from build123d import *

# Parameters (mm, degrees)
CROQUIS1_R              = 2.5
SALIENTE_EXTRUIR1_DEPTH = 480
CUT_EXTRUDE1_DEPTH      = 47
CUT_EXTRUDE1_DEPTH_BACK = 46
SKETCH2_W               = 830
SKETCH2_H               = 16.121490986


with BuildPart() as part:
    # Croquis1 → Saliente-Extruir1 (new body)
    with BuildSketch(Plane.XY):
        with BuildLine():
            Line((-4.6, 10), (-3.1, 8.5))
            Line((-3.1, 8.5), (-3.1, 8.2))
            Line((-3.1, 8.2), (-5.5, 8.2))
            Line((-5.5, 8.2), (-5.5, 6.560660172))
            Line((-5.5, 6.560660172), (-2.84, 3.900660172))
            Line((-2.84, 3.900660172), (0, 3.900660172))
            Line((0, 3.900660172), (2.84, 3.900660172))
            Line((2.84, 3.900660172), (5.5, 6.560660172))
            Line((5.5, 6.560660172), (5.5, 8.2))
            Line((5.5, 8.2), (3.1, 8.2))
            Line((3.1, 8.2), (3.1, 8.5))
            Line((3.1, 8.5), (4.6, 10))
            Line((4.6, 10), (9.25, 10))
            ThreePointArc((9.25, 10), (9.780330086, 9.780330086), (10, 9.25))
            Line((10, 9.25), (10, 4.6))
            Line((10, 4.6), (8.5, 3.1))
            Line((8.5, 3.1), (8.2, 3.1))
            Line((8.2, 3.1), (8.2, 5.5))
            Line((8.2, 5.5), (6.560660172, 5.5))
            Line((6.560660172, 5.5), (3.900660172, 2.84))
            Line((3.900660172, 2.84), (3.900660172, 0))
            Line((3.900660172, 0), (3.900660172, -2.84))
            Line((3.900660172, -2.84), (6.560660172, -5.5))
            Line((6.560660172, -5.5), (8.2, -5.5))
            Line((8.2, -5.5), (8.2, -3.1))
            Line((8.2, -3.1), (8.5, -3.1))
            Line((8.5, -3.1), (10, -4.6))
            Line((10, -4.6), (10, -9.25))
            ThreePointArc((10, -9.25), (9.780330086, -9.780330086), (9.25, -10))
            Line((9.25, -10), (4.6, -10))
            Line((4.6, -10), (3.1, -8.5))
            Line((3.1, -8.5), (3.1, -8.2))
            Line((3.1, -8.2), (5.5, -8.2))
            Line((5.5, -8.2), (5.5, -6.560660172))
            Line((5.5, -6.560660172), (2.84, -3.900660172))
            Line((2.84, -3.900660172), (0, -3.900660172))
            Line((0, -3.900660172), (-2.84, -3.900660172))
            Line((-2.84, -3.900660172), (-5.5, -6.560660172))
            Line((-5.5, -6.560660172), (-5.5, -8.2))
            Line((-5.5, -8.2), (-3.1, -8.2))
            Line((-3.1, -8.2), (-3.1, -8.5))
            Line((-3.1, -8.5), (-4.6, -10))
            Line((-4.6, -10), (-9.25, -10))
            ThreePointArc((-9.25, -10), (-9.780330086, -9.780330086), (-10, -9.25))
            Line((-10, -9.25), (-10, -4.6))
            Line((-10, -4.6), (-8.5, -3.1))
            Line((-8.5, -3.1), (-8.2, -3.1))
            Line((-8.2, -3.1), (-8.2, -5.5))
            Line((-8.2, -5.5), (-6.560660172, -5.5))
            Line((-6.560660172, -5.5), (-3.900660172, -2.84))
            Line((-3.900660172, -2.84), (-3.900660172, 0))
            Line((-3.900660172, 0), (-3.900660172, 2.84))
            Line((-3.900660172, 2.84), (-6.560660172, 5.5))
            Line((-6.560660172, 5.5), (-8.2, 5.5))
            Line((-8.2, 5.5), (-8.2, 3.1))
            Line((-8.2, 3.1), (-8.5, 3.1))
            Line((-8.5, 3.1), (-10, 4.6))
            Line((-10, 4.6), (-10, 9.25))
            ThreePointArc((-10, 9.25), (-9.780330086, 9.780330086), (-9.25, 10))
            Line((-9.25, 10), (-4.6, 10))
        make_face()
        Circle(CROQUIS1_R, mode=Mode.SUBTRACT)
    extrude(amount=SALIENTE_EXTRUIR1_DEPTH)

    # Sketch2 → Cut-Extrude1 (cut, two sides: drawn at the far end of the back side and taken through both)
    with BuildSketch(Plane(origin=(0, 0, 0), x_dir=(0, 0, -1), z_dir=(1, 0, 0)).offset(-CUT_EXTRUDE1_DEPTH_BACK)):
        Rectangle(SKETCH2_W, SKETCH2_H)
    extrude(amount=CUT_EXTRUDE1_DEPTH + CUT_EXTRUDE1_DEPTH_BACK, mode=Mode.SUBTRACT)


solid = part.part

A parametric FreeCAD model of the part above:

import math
import FreeCAD as App
import Part
import Sketcher

V = App.Vector
Q = App.Units.Quantity

doc = App.newDocument("Part")
body = doc.addObject("PartDesign::Body", "Body")

sketch1 = body.newObject("Sketcher::SketchObject", "Sketch")
sketch1.AttachmentSupport = (doc.getObject("XY_Plane"), [""])
sketch1.MapMode = "FlatFace"
sketch1.addGeometry([
    Part.LineSegment(V(-3.1, 8.5, 0), V(-4.6, 10, 0)),
    Part.LineSegment(V(-4.6, 10, 0), V(-9.25, 10, 0)),
    Part.ArcOfCircle(Part.Circle(V(-9.25, 9.25, 0), V(0, 0, 1), 0.75), math.radians(90), math.radians(180)),
    Part.LineSegment(V(-10, 9.25, 0), V(-10, 4.6, 0)),
    Part.LineSegment(V(-10, 4.6, 0), V(-8.5, 3.1, 0)),
    Part.LineSegment(V(-8.5, 3.1, 0), V(-8.2, 3.1, 0)),
    Part.LineSegment(V(-8.2, 3.1, 0), V(-8.2, 5.5, 0)),
    Part.LineSegment(V(-8.2, 5.5, 0), V(-6.56, 5.5, 0)),
    Part.LineSegment(V(-6.56, 5.5, 0), V(-3.9, 2.84, 0)),
    Part.LineSegment(V(-3.9, 2.84, 0), V(-3.9, -2.84, 0)),
    Part.LineSegment(V(-3.9, -2.84, 0), V(-6.56, -5.5, 0)),
    Part.LineSegment(V(-6.56, -5.5, 0), V(-8.2, -5.5, 0)),
    Part.LineSegment(V(-8.2, -5.5, 0), V(-8.2, -3.1, 0)),
    Part.LineSegment(V(-8.2, -3.1, 0), V(-8.5, -3.1, 0)),
    Part.LineSegment(V(-8.5, -3.1, 0), V(-10, -4.6, 0)),
    Part.LineSegment(V(-10, -4.6, 0), V(-10, -9.25, 0)),
    Part.ArcOfCircle(Part.Circle(V(-9.25, -9.25, 0), V(0, 0, 1), 0.75), math.radians(180), math.radians(270)),
    Part.LineSegment(V(-9.25, -10, 0), V(-4.6, -10, 0)),
    Part.LineSegment(V(-4.6, -10, 0), V(-3.1, -8.5, 0)),
    Part.LineSegment(V(-3.1, -8.5, 0), V(-3.1, -8.2, 0)),
    Part.LineSegment(V(-3.1, -8.2, 0), V(-5.5, -8.2, 0)),
    Part.LineSegment(V(-5.5, -8.2, 0), V(-5.5, -6.56, 0)),
    Part.LineSegment(V(-5.5, -6.56, 0), V(-2.84, -3.9, 0)),
    Part.LineSegment(V(-2.84, -3.9, 0), V(2.84, -3.9, 0)),
    Part.LineSegment(V(2.84, -3.9, 0), V(5.5, -6.56, 0)),
    Part.LineSegment(V(5.5, -6.56, 0), V(5.5, -8.2, 0)),
    Part.LineSegment(V(5.5, -8.2, 0), V(3.1, -8.2, 0)),
    Part.LineSegment(V(3.1, -8.2, 0), V(3.1, -8.5, 0)),
    Part.LineSegment(V(3.1, -8.5, 0), V(4.6, -10, 0)),
    Part.LineSegment(V(4.6, -10, 0), V(9.25, -10, 0)),
    Part.ArcOfCircle(Part.Circle(V(9.25, -9.25, 0), V(0, 0, 1), 0.75), math.radians(-90), math.radians(0)),
    Part.LineSegment(V(10, -9.25, 0), V(10, -4.6, 0)),
    Part.LineSegment(V(10, -4.6, 0), V(8.5, -3.1, 0)),
    Part.LineSegment(V(8.5, -3.1, 0), V(8.2, -3.1, 0)),
    Part.LineSegment(V(8.2, -3.1, 0), V(8.2, -5.5, 0)),
    Part.LineSegment(V(8.2, -5.5, 0), V(6.56, -5.5, 0)),
    Part.LineSegment(V(6.56, -5.5, 0), V(3.9, -2.84, 0)),
    Part.LineSegment(V(3.9, -2.84, 0), V(3.9, 2.84, 0)),
    Part.LineSegment(V(3.9, 2.84, 0), V(6.56, 5.5, 0)),
    Part.LineSegment(V(6.56, 5.5, 0), V(8.2, 5.5, 0)),
    Part.LineSegment(V(8.2, 5.5, 0), V(8.2, 3.1, 0)),
    Part.LineSegment(V(8.2, 3.1, 0), V(8.5, 3.1, 0)),
    Part.LineSegment(V(8.5, 3.1, 0), V(10, 4.6, 0)),
    Part.LineSegment(V(10, 4.6, 0), V(10, 9.25, 0)),
    Part.ArcOfCircle(Part.Circle(V(9.25, 9.25, 0), V(0, 0, 1), 0.75), math.radians(0), math.radians(90)),
    Part.LineSegment(V(9.25, 10, 0), V(4.6, 10, 0)),
    Part.LineSegment(V(4.6, 10, 0), V(3.1, 8.5, 0)),
    Part.LineSegment(V(3.1, 8.5, 0), V(3.1, 8.2, 0)),
    Part.LineSegment(V(3.1, 8.2, 0), V(5.5, 8.2, 0)),
    Part.LineSegment(V(5.5, 8.2, 0), V(5.5, 6.56, 0)),
    Part.LineSegment(V(5.5, 6.56, 0), V(2.84, 3.9, 0)),
    Part.LineSegment(V(2.84, 3.9, 0), V(-2.84, 3.9, 0)),
    Part.LineSegment(V(-2.84, 3.9, 0), V(-5.5, 6.56, 0)),
    Part.LineSegment(V(-5.5, 6.56, 0), V(-5.5, 8.2, 0)),
    Part.LineSegment(V(-5.5, 8.2, 0), V(-3.1, 8.2, 0)),
    Part.LineSegment(V(-3.1, 8.2, 0), V(-3.1, 8.5, 0)),
    Part.Circle(V(0, 0, 0), V(0, 0, 1), 2.5),
], False)
sketch1.addConstraint([
    Sketcher.Constraint("Coincident", 0, 2, 1, 1),
    Sketcher.Constraint("Tangent", 1, 2, 2, 1),
    Sketcher.Constraint("Tangent", 2, 2, 3, 1),
    Sketcher.Constraint("Coincident", 3, 2, 4, 1),
    Sketcher.Constraint("Coincident", 4, 2, 5, 1),
    Sketcher.Constraint("Coincident", 5, 2, 6, 1),
    Sketcher.Constraint("Coincident", 6, 2, 7, 1),
    Sketcher.Constraint("Coincident", 7, 2, 8, 1),
    Sketcher.Constraint("Coincident", 8, 2, 9, 1),
    Sketcher.Constraint("Coincident", 9, 2, 10, 1),
    Sketcher.Constraint("Coincident", 10, 2, 11, 1),
    Sketcher.Constraint("Coincident", 11, 2, 12, 1),
    Sketcher.Constraint("Coincident", 12, 2, 13, 1),
    Sketcher.Constraint("Coincident", 13, 2, 14, 1),
    Sketcher.Constraint("Coincident", 14, 2, 15, 1),
    Sketcher.Constraint("Tangent", 15, 2, 16, 1),
    Sketcher.Constraint("Tangent", 16, 2, 17, 1),
    Sketcher.Constraint("Coincident", 17, 2, 18, 1),
    Sketcher.Constraint("Coincident", 18, 2, 19, 1),
    Sketcher.Constraint("Coincident", 19, 2, 20, 1),
    Sketcher.Constraint("Coincident", 20, 2, 21, 1),
    Sketcher.Constraint("Coincident", 21, 2, 22, 1),
    Sketcher.Constraint("Coincident", 22, 2, 23, 1),
    Sketcher.Constraint("Coincident", 23, 2, 24, 1),
    Sketcher.Constraint("Coincident", 24, 2, 25, 1),
    Sketcher.Constraint("Coincident", 25, 2, 26, 1),
    Sketcher.Constraint("Coincident", 26, 2, 27, 1),
    Sketcher.Constraint("Coincident", 27, 2, 28, 1),
    Sketcher.Constraint("Coincident", 28, 2, 29, 1),
    Sketcher.Constraint("Tangent", 29, 2, 30, 1),
    Sketcher.Constraint("Tangent", 30, 2, 31, 1),
    Sketcher.Constraint("Coincident", 31, 2, 32, 1),
    Sketcher.Constraint("Coincident", 32, 2, 33, 1),
    Sketcher.Constraint("Coincident", 33, 2, 34, 1),
    Sketcher.Constraint("Coincident", 34, 2, 35, 1),
    Sketcher.Constraint("Coincident", 35, 2, 36, 1),
    Sketcher.Constraint("Coincident", 36, 2, 37, 1),
    Sketcher.Constraint("Coincident", 37, 2, 38, 1),
    Sketcher.Constraint("Coincident", 38, 2, 39, 1),
    Sketcher.Constraint("Coincident", 39, 2, 40, 1),
    Sketcher.Constraint("Coincident", 40, 2, 41, 1),
    Sketcher.Constraint("Coincident", 41, 2, 42, 1),
    Sketcher.Constraint("Coincident", 42, 2, 43, 1),
    Sketcher.Constraint("Tangent", 43, 2, 44, 1),
    Sketcher.Constraint("Tangent", 44, 2, 45, 1),
    Sketcher.Constraint("Coincident", 45, 2, 46, 1),
    Sketcher.Constraint("Coincident", 46, 2, 47, 1),
    Sketcher.Constraint("Coincident", 47, 2, 48, 1),
    Sketcher.Constraint("Coincident", 48, 2, 49, 1),
    Sketcher.Constraint("Coincident", 49, 2, 50, 1),
    Sketcher.Constraint("Coincident", 50, 2, 51, 1),
    Sketcher.Constraint("Coincident", 51, 2, 52, 1),
    Sketcher.Constraint("Coincident", 52, 2, 53, 1),
    Sketcher.Constraint("Coincident", 53, 2, 54, 1),
    Sketcher.Constraint("Coincident", 54, 2, 55, 1),
    Sketcher.Constraint("Coincident", 55, 2, 0, 1),
    Sketcher.Constraint("Horizontal", 1),
    Sketcher.Constraint("Vertical", 3),
    Sketcher.Constraint("Horizontal", 5),
    Sketcher.Constraint("Vertical", 6),
    Sketcher.Constraint("Horizontal", 7),
    Sketcher.Constraint("Vertical", 9),
    Sketcher.Constraint("Horizontal", 11),
    Sketcher.Constraint("Vertical", 12),
    Sketcher.Constraint("Horizontal", 13),
    Sketcher.Constraint("Vertical", 15),
    Sketcher.Constraint("Horizontal", 17),
    Sketcher.Constraint("Vertical", 19),
    Sketcher.Constraint("Horizontal", 20),
    Sketcher.Constraint("Vertical", 21),
    Sketcher.Constraint("Horizontal", 23),
    Sketcher.Constraint("Vertical", 25),
    Sketcher.Constraint("Horizontal", 26),
    Sketcher.Constraint("Vertical", 27),
    Sketcher.Constraint("Horizontal", 29),
    Sketcher.Constraint("Vertical", 31),
    Sketcher.Constraint("Horizontal", 33),
    Sketcher.Constraint("Vertical", 34),
    Sketcher.Constraint("Horizontal", 35),
    Sketcher.Constraint("Vertical", 37),
    Sketcher.Constraint("Horizontal", 39),
    Sketcher.Constraint("Vertical", 40),
    Sketcher.Constraint("Horizontal", 41),
    Sketcher.Constraint("Vertical", 43),
    Sketcher.Constraint("Horizontal", 45),
    Sketcher.Constraint("Vertical", 47),
    Sketcher.Constraint("Horizontal", 48),
    Sketcher.Constraint("Vertical", 49),
    Sketcher.Constraint("Horizontal", 51),
    Sketcher.Constraint("Vertical", 53),
    Sketcher.Constraint("Horizontal", 54),
    Sketcher.Constraint("Vertical", 55),
    Sketcher.Constraint("Coincident", 56, 3, -1, 1),
    Sketcher.Constraint("Equal", 2, 16),
    Sketcher.Constraint("Equal", 16, 30),
    Sketcher.Constraint("Equal", 30, 44),
    Sketcher.Constraint("Symmetric", 2, 3, 30, 3, -1, 1),
    Sketcher.Constraint("Symmetric", 16, 3, 44, 3, -1, 1),
    Sketcher.Constraint("Symmetric", 4, 2, 32, 2, -1, 1),
    Sketcher.Constraint("Symmetric", 6, 2, 34, 2, -1, 1),
    Sketcher.Constraint("Symmetric", 8, 2, 36, 2, -1, 1),
    Sketcher.Constraint("Symmetric", 10, 2, 38, 2, -1, 1),
    Sketcher.Constraint("Symmetric", 12, 2, 40, 2, -1, 1),
    Sketcher.Constraint("Symmetric", 18, 2, 46, 2, -1, 1),
    Sketcher.Constraint("Symmetric", 20, 2, 48, 2, -1, 1),
    Sketcher.Constraint("Symmetric", 22, 2, 50, 2, -1, 1),
    Sketcher.Constraint("Symmetric", 24, 2, 52, 2, -1, 1),
    Sketcher.Constraint("Symmetric", 26, 2, 54, 2, -1, 1),
    Sketcher.Constraint("Symmetric", 16, 3, 30, 3, -2),
    Sketcher.Constraint("Symmetric", 21, 2, 24, 2, -2),
    Sketcher.Constraint("Symmetric", 19, 2, 26, 2, -2),
    Sketcher.Constraint("Symmetric", 13, 2, 32, 2, -2),
    Sketcher.Constraint("Symmetric", 11, 2, 34, 2, -2),
    Sketcher.Constraint("Parallel", 0, 4),
    Sketcher.Constraint("Parallel", 4, 8),
    Sketcher.Constraint("Perpendicular", 8, 10),
    Sketcher.Constraint("Parallel", 10, 14),
    Sketcher.Constraint("Parallel", 14, 18),
    Sketcher.Constraint("Parallel", 18, 22),
    Sketcher.Constraint("Perpendicular", 22, 24),
    Sketcher.Constraint("Parallel", 24, 28),
    Sketcher.Constraint("Parallel", 28, 32),
    Sketcher.Constraint("Parallel", 32, 36),
    Sketcher.Constraint("Perpendicular", 36, 38),
    Sketcher.Constraint("Parallel", 38, 42),
    Sketcher.Constraint("Parallel", 42, 46),
    Sketcher.Constraint("Parallel", 46, 50),
    Sketcher.Constraint("Perpendicular", 50, 52),
    Sketcher.Constraint("Horizontal", 18, 2, 27, 2),
    Sketcher.Constraint("Horizontal", 14, 2, 31, 2),
    Sketcher.Constraint("Horizontal", 9, 2, 36, 2),
    Sketcher.Constraint("Horizontal", 3, 2, 42, 2),
    Sketcher.Constraint("Horizontal", 46, 2, 55, 2),
    Sketcher.Constraint("Equal", 45, 3),
    Sketcher.Constraint("Equal", 54, 6),
    Sketcher.Constraint("Equal", 51, 9),
    Sketcher.Constraint("Equal", 41, 19),
    Sketcher.Constraint("Equal", 39, 21),
    Sketcher.Constraint("Equal", 0, 4),
    Sketcher.Constraint("Equal", 10, 22),
    Sketcher.Constraint("Diameter", 56, Q("5 mm")),
    Sketcher.Constraint("Radius", 2, Q("0.75 mm")),
    Sketcher.Constraint("DistanceX", 5, 1, 5, 2, Q("0.3 mm")),
    Sketcher.Constraint("DistanceX", 20, 2, 20, 1, Q("2.4 mm")),
    Sketcher.Constraint("DistanceY", -1, 1, 0, 2, Q("10 mm")),
    Sketcher.Constraint("DistanceX", 1, 2, 1, 1, Q("4.65 mm")),
    Sketcher.Constraint("DistanceX", 23, 1, 23, 2, Q("5.68 mm")),
    Sketcher.Constraint("DistanceX", 4, 2, -1, 1, Q("8.5 mm")),
    Sketcher.Constraint("DistanceX", 7, 1, 7, 2, Q("1.63934 mm")),
])
pad1 = body.newObject("PartDesign::Pad", "Pad")
pad1.Profile = sketch1
pad1.Length = 480

sketch2 = body.newObject("Sketcher::SketchObject", "Sketch001")
sketch2.AttachmentSupport = (doc.getObject("YZ_Plane"), [""])
sketch2.MapMode = "FlatFace"
sketch2.addGeometry([
    Part.LineSegment(V(8, 415, 0), V(-8, 415, 0)),
    Part.LineSegment(V(-8, 415, 0), V(-8, -415, 0)),
    Part.LineSegment(V(-8, -415, 0), V(8, -415, 0)),
    Part.LineSegment(V(8, -415, 0), V(8, 415, 0)),
], False)
sketch2.addConstraint([
    Sketcher.Constraint("Coincident", 0, 2, 1, 1),
    Sketcher.Constraint("Coincident", 1, 2, 2, 1),
    Sketcher.Constraint("Coincident", 2, 2, 3, 1),
    Sketcher.Constraint("Coincident", 3, 2, 0, 1),
    Sketcher.Constraint("Horizontal", 0),
    Sketcher.Constraint("Vertical", 1),
    Sketcher.Constraint("Horizontal", 2),
    Sketcher.Constraint("Vertical", 3),
    Sketcher.Constraint("Symmetric", 0, 2, 2, 2, -1, 1),
    Sketcher.Constraint("DistanceY", 1, 2, 1, 1, Q("830 mm")),
    Sketcher.Constraint("DistanceX", 0, 2, 0, 1, Q("16.121491 mm")),
])
pocket1 = body.newObject("PartDesign::Pocket", "Pocket")
pocket1.Profile = sketch2
pocket1.Type = "ThroughAll"
pocket1.Midplane = True

doc.recompute()
